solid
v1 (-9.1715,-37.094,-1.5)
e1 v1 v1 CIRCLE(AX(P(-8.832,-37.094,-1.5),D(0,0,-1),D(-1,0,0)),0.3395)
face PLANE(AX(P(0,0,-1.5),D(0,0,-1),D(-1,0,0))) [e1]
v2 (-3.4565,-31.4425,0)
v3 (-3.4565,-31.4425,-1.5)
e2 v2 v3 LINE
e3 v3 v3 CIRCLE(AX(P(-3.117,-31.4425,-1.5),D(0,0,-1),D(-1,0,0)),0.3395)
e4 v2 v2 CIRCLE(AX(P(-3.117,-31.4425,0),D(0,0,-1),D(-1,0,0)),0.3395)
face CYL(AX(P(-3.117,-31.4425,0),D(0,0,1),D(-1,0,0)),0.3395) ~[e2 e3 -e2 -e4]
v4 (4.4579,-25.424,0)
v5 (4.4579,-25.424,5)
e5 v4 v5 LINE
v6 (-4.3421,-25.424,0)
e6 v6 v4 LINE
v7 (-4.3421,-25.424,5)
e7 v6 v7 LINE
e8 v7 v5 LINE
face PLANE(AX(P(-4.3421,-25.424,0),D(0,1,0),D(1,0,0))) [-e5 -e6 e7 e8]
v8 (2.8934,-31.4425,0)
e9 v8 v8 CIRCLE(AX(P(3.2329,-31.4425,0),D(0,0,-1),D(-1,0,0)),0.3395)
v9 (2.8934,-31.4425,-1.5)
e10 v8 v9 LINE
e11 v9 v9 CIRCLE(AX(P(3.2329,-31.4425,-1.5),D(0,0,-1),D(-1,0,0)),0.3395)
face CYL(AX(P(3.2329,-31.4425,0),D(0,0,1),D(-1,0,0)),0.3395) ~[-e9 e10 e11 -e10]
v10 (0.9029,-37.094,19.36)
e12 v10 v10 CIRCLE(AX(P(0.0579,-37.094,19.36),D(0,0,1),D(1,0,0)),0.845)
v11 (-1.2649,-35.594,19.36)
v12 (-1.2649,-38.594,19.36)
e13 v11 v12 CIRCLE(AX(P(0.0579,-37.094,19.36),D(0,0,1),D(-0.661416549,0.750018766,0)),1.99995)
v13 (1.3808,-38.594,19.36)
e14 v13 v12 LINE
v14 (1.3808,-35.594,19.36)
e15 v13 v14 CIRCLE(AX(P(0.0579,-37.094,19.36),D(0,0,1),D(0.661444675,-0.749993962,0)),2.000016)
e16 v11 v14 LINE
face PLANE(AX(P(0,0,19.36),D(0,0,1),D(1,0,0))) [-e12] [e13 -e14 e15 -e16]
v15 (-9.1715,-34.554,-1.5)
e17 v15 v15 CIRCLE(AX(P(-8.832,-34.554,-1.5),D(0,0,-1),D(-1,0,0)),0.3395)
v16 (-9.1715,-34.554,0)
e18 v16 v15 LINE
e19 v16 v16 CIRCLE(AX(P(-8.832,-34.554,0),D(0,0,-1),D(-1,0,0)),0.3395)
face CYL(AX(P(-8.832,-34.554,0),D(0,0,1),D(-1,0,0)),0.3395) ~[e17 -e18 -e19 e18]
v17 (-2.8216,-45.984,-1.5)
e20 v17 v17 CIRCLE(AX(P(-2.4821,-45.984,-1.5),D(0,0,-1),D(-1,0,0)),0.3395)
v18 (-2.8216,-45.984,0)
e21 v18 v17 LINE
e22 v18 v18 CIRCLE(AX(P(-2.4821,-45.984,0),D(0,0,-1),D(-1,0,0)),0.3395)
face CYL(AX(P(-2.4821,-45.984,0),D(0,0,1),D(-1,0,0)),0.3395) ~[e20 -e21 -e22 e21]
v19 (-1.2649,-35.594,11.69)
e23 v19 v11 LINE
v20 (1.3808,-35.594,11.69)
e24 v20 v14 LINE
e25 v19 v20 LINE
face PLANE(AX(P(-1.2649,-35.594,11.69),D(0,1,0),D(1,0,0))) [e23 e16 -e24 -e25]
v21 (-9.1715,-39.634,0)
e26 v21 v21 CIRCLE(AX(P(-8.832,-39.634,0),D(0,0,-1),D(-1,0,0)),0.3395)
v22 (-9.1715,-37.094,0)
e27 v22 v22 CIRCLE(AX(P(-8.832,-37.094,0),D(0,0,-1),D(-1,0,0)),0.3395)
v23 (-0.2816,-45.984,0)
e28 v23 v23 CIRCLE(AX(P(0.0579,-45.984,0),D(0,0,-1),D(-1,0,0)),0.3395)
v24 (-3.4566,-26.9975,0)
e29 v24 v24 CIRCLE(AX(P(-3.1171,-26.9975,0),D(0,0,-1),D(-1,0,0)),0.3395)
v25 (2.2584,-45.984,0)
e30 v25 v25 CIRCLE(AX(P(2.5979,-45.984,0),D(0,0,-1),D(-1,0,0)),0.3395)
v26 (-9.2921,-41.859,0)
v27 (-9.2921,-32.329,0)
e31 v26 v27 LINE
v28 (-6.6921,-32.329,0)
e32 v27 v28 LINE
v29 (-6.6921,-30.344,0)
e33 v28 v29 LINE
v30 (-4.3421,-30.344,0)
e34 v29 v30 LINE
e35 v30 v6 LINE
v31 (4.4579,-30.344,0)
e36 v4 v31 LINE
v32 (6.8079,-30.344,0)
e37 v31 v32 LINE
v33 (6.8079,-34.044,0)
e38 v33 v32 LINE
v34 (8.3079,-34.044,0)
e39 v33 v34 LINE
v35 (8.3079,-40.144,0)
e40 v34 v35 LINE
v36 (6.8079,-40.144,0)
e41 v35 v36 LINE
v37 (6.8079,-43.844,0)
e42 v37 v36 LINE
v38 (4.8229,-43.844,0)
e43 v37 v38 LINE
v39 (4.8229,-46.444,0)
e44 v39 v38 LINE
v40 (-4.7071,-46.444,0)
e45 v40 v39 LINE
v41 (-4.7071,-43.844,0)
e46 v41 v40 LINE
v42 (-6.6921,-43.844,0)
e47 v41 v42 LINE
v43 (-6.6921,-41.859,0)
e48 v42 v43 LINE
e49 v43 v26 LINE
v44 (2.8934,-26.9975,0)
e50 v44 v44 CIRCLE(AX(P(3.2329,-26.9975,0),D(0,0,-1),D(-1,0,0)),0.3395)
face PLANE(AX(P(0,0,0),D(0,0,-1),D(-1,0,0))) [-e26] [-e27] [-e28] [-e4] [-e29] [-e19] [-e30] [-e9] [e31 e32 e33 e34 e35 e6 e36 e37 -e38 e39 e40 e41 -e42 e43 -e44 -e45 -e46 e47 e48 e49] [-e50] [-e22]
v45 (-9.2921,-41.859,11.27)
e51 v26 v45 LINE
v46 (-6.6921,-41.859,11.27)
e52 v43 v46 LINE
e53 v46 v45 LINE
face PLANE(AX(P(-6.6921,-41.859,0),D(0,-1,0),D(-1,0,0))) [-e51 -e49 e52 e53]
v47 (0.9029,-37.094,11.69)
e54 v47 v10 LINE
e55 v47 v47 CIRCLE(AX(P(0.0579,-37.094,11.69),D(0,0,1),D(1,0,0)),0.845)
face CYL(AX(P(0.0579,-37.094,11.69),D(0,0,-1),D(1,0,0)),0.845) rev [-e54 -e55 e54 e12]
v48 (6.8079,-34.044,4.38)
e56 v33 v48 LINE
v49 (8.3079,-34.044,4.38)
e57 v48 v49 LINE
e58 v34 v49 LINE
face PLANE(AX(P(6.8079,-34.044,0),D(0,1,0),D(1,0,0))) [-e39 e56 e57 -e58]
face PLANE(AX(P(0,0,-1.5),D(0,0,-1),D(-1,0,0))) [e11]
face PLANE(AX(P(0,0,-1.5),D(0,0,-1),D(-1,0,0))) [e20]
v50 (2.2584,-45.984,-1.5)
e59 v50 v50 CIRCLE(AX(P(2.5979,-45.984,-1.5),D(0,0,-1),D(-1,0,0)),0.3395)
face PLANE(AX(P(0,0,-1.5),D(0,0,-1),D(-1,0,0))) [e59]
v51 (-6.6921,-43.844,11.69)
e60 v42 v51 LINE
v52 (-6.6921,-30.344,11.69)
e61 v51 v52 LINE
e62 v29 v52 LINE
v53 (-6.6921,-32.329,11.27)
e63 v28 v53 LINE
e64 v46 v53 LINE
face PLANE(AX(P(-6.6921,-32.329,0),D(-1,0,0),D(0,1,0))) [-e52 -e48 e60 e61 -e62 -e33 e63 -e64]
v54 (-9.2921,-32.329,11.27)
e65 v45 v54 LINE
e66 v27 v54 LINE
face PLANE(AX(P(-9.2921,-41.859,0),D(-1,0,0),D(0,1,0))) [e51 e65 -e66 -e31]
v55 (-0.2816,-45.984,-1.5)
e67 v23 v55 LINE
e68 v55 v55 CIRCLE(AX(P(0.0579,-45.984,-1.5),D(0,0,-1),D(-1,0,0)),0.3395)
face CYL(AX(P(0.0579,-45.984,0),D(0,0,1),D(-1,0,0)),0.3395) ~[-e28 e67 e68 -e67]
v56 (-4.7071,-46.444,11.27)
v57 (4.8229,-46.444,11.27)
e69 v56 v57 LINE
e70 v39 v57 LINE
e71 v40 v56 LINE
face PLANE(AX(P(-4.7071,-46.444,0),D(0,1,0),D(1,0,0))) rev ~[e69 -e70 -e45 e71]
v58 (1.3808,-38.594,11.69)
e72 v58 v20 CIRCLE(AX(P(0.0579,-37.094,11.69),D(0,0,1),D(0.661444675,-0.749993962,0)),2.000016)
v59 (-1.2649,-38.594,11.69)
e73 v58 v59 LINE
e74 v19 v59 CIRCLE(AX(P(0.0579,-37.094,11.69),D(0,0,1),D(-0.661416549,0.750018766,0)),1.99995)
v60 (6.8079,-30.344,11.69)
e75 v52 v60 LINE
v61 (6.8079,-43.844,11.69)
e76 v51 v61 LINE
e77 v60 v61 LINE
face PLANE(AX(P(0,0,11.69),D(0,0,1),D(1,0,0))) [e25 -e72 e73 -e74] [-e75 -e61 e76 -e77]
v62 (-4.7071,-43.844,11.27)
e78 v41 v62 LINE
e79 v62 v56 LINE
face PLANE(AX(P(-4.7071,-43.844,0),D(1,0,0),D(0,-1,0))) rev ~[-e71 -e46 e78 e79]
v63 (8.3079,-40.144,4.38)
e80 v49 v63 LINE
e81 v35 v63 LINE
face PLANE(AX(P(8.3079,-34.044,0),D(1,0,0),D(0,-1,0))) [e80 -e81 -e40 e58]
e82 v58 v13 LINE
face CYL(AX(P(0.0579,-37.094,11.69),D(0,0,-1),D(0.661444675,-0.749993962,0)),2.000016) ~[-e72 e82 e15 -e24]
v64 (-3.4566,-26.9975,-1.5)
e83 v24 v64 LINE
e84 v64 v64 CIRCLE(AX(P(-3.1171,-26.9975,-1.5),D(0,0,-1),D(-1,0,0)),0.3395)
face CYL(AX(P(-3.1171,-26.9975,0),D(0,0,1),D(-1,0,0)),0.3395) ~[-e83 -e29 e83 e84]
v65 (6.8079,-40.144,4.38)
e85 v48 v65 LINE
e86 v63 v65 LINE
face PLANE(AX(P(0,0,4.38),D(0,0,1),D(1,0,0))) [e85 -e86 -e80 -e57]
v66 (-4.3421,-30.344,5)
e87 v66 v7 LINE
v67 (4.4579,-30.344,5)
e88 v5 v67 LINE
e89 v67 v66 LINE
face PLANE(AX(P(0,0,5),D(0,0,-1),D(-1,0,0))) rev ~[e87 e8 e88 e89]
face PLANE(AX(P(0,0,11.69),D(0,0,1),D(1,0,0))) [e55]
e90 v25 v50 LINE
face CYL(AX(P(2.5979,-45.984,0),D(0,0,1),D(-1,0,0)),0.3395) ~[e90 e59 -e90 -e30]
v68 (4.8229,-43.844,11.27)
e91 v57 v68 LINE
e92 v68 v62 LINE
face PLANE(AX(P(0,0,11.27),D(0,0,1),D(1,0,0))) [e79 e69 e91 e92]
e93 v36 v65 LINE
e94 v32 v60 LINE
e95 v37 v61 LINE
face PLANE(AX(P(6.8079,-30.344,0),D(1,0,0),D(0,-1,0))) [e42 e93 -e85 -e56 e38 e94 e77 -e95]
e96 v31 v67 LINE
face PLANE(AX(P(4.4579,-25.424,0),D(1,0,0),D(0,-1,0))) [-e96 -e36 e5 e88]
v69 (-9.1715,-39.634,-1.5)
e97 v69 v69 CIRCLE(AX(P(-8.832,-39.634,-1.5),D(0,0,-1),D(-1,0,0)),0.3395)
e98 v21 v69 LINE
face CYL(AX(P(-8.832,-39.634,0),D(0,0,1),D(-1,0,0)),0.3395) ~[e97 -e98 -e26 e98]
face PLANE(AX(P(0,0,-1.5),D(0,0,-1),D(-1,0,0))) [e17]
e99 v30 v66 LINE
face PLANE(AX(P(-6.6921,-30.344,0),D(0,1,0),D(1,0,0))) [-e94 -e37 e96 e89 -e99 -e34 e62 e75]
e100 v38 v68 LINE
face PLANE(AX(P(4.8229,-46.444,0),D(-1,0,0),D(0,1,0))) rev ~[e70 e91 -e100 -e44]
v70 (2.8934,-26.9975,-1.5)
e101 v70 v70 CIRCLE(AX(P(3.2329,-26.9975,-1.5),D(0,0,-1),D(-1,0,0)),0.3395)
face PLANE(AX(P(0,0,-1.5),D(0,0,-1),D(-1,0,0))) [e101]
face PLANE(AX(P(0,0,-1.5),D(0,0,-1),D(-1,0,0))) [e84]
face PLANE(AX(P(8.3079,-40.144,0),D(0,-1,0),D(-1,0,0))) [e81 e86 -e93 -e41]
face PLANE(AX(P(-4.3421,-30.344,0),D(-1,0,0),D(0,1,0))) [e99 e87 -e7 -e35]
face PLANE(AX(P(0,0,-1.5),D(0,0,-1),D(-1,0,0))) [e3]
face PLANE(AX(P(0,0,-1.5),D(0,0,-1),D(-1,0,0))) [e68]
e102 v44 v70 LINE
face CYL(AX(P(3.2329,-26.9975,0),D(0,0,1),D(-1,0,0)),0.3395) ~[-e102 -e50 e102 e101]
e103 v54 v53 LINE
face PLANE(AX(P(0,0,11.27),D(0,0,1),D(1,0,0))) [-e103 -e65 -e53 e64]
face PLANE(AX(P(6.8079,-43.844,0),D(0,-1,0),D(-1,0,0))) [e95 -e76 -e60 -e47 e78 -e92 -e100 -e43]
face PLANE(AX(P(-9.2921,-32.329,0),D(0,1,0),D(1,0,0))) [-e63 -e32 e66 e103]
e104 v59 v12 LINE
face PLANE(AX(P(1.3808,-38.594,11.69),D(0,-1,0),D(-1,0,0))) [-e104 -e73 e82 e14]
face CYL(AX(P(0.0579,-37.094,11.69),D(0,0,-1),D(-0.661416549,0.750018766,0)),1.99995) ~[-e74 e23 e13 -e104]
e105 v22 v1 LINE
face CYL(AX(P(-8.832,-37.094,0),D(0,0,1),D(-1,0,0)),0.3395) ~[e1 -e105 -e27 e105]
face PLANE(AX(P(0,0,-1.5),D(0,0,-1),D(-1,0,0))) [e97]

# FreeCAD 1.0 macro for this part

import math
import FreeCAD as App
import Part
import Sketcher
from FreeCAD import Vector


def add_polygon(sketch, points):
    """Adds a closed chain of lines whose ends are joined by coincident constraints."""
    first, n = sketch.GeometryCount, len(points)
    for a, b in zip(points, points[1:] + points[:1]):
        sketch.addGeometry(Part.LineSegment(App.Vector(*a, 0), App.Vector(*b, 0)), False)
    for i in range(n):
        sketch.addConstraint(Sketcher.Constraint("Coincident", first + i, 2, first + (i + 1) % n, 1))

doc = App.newDocument("Part")
body = doc.addObject("PartDesign::Body", "Body")
body.AllowCompound = True

# Sketch on XY plane
sketch1 = body.newObject("Sketcher::SketchObject", "Sketch")
sketch1.AttachmentSupport = (doc.getObject("XY_Plane"), [""])
sketch1.MapMode = "FlatFace"
add_polygon(sketch1, [(7, -30), (-7, -30), (-7, -44), (7, -44)])  # lines 0-3
sketch1.addConstraint(Sketcher.Constraint("Horizontal", 0))
sketch1.addConstraint(Sketcher.Constraint("Vertical", 1))
sketch1.addConstraint(Sketcher.Constraint("Horizontal", 2))
sketch1.addConstraint(Sketcher.Constraint("Vertical", 3))
sketch1.addConstraint(Sketcher.Constraint("Equal", 2, 1))
sketch1.addConstraint(Sketcher.Constraint("DistanceX", 0, 2, 0, 1, 13.5))
sketch1.addConstraint(Sketcher.Constraint("DistanceX", 0, 2, -1, 1, 6.692))
sketch1.addConstraint(Sketcher.Constraint("DistanceY", 0, 2, -1, 1, 30.344))
pad1 = body.newObject("PartDesign::Pad", "Pad")
pad1.Profile = sketch1
pad1.Length = 11.69

# Sketch on XY plane
sketch2 = body.newObject("Sketcher::SketchObject", "Sketch001")
sketch2.AttachmentSupport = (doc.getObject("XY_Plane"), [""])
sketch2.MapMode = "FlatFace"
add_polygon(sketch2, [(-6.7, -41.9), (-6.7, -32.3), (-9.3, -32.3), (-9.3, -41.9)])  # lines 0-3
add_polygon(sketch2, [(4.8, -43.8), (-4.7, -43.8), (-4.7, -46.4), (4.8, -46.4)])  # lines 4-7
sketch2.addConstraint(Sketcher.Constraint("Vertical", 0))
sketch2.addConstraint(Sketcher.Constraint("Horizontal", 1))
sketch2.addConstraint(Sketcher.Constraint("Vertical", 2))
sketch2.addConstraint(Sketcher.Constraint("Horizontal", 3))
sketch2.addConstraint(Sketcher.Constraint("Horizontal", 4))
sketch2.addConstraint(Sketcher.Constraint("Vertical", 5))
sketch2.addConstraint(Sketcher.Constraint("Horizontal", 6))
sketch2.addConstraint(Sketcher.Constraint("Vertical", 7))
sketch2.addConstraint(Sketcher.Constraint("Equal", 6, 0))
sketch2.addConstraint(Sketcher.Constraint("Equal", 3, 5))
sketch2.addConstraint(Sketcher.Constraint("DistanceX", 1, 2, 1, 1, 2.6))
sketch2.addConstraint(Sketcher.Constraint("DistanceX", 4, 2, 4, 1, 9.53))
sketch2.addConstraint(Sketcher.Constraint("DistanceX", 0, 2, -1, 1, 6.692))
sketch2.addConstraint(Sketcher.Constraint("DistanceY", 0, 2, -1, 1, 32.329))
sketch2.addConstraint(Sketcher.Constraint("DistanceX", 4, 2, -1, 1, 4.707))
sketch2.addConstraint(Sketcher.Constraint("DistanceY", 4, 2, -1, 1, 43.844))
pad2 = body.newObject("PartDesign::Pad", "Pad001")
pad2.Profile = sketch2
pad2.Length = 11.27

# Sketch on XY plane
sketch3 = body.newObject("Sketcher::SketchObject", "Sketch002")
sketch3.AttachmentSupport = (doc.getObject("XY_Plane"), [""])
sketch3.MapMode = "FlatFace"
add_polygon(sketch3, [(8.3, -34), (6.8, -34), (6.8, -40.1), (8.3, -40.1)])  # lines 0-3
sketch3.addConstraint(Sketcher.Constraint("Horizontal", 0))
sketch3.addConstraint(Sketcher.Constraint("Vertical", 1))
sketch3.addConstraint(Sketcher.Constraint("Horizontal", 2))
sketch3.addConstraint(Sketcher.Constraint("Vertical", 3))
sketch3.addConstraint(Sketcher.Constraint("DistanceX", 0, 2, 0, 1, 1.5))
sketch3.addConstraint(Sketcher.Constraint("DistanceY", 1, 2, 1, 1, 6.1))
sketch3.addConstraint(Sketcher.Constraint("DistanceX", -1, 1, 0, 2, 6.808))
sketch3.addConstraint(Sketcher.Constraint("DistanceY", 0, 2, -1, 1, 34.044))
pad3 = body.newObject("PartDesign::Pad", "Pad002")
pad3.Profile = sketch3
pad3.Length = 4.38

# Sketch on XY plane
sketch4 = body.newObject("Sketcher::SketchObject", "Sketch003")
sketch4.AttachmentSupport = (doc.getObject("XY_Plane"), [""])
sketch4.MapMode = "FlatFace"
sketch4.AttachmentOffset = App.Placement(Vector(0, 0, 11.69), App.Rotation())
sketch4.addGeometry(Part.LineSegment(Vector(-1.3, -38.6, 0), Vector(1.4, -38.6, 0)), False)
sketch4.addGeometry(Part.ArcOfCircle(Part.Circle(Vector(0.1, -37.1, 0), Vector(0, 0, 1), 2), math.radians(-49), math.radians(49)), False)
sketch4.addGeometry(Part.LineSegment(Vector(1.4, -35.6, 0), Vector(-1.3, -35.6, 0)), False)
sketch4.addGeometry(Part.ArcOfCircle(Part.Circle(Vector(0.1, -37.1, 0), Vector(0, 0, 1), 2), math.radians(131), math.radians(229)), False)
sketch4.addGeometry(Part.Circle(Vector(0.1, -37.1, 0), Vector(0, 0, 1), 0.8), False)
sketch4.addConstraint(Sketcher.Constraint("Coincident", 0, 2, 1, 1))
sketch4.addConstraint(Sketcher.Constraint("Coincident", 1, 2, 2, 1))
sketch4.addConstraint(Sketcher.Constraint("Coincident", 2, 2, 3, 1))
sketch4.addConstraint(Sketcher.Constraint("Coincident", 3, 2, 0, 1))
sketch4.addConstraint(Sketcher.Constraint("Horizontal", 0))
sketch4.addConstraint(Sketcher.Constraint("Horizontal", 2))
sketch4.addConstraint(Sketcher.Constraint("Coincident", 3, 3, 1, 3))
sketch4.addConstraint(Sketcher.Constraint("Coincident", 4, 3, 1, 3))
sketch4.addConstraint(Sketcher.Constraint("Equal", 1, 3))
sketch4.addConstraint(Sketcher.Constraint("Vertical", 0, 2, 1, 2))
sketch4.addConstraint(Sketcher.Constraint("Diameter", 4, 1.69))
sketch4.addConstraint(Sketcher.Constraint("Radius", 1, 2.0))
sketch4.addConstraint(Sketcher.Constraint("DistanceY", 0, 2, 1, 2, 3.0))
sketch4.addConstraint(Sketcher.Constraint("DistanceX", -1, 1, 1, 3, 0.058))
sketch4.addConstraint(Sketcher.Constraint("DistanceY", 1, 3, -1, 1, 37.094))
pad4 = body.newObject("PartDesign::Pad", "Pad003")
pad4.Profile = sketch4
pad4.Length = 7.67

# Sketch on XY plane
sketch5 = body.newObject("Sketcher::SketchObject", "Sketch004")
sketch5.AttachmentSupport = (doc.getObject("XY_Plane"), [""])
sketch5.MapMode = "FlatFace"
sketch5.addGeometry(Part.Circle(Vector(-2.48, -45.98, 0), Vector(0, 0, 1), 0.34), False)
sketch5.addGeometry(Part.Circle(Vector(-8.83, -39.63, 0), Vector(0, 0, 1), 0.34), False)
sketch5.addGeometry(Part.Circle(Vector(-8.83, -37.09, 0), Vector(0, 0, 1), 0.34), False)
sketch5.addGeometry(Part.Circle(Vector(-8.83, -34.55, 0), Vector(0, 0, 1), 0.34), False)
sketch5.addGeometry(Part.Circle(Vector(0.06, -45.98, 0), Vector(0, 0, 1), 0.34), False)
sketch5.addGeometry(Part.Circle(Vector(2.6, -45.98, 0), Vector(0, 0, 1), 0.34), False)
sketch5.addGeometry(Part.Circle(Vector(3.23, -31.44, 0), Vector(0, 0, 1), 0.34), False)
sketch5.addGeometry(Part.Circle(Vector(3.23, -27, 0), Vector(0, 0, 1), 0.34), False)
sketch5.addGeometry(Part.Circle(Vector(-3.12, -31.44, 0), Vector(0, 0, 1), 0.34), False)
sketch5.addGeometry(Part.Circle(Vector(-3.12, -27, 0), Vector(0, 0, 1), 0.34), False)
sketch5.addConstraint(Sketcher.Constraint("Equal", 0, 1))
sketch5.addConstraint(Sketcher.Constraint("Equal", 1, 2))
sketch5.addConstraint(Sketcher.Constraint("Equal", 2, 3))
sketch5.addConstraint(Sketcher.Constraint("Equal", 3, 4))
sketch5.addConstraint(Sketcher.Constraint("Equal", 4, 5))
sketch5.addConstraint(Sketcher.Constraint("Equal", 5, 6))
sketch5.addConstraint(Sketcher.Constraint("Equal", 6, 7))
sketch5.addConstraint(Sketcher.Constraint("Equal", 7, 8))
sketch5.addConstraint(Sketcher.Constraint("Equal", 8, 9))
sketch5.addConstraint(Sketcher.Constraint("Horizontal", 0, 3, 4, 3))
sketch5.addConstraint(Sketcher.Constraint("Horizontal", 4, 3, 5, 3))
sketch5.addConstraint(Sketcher.Constraint("Horizontal", 6, 3, 8, 3))
sketch5.addConstraint(Sketcher.Constraint("Horizontal", 7, 3, 9, 3))
sketch5.addConstraint(Sketcher.Constraint("Vertical", 1, 3, 2, 3))
sketch5.addConstraint(Sketcher.Constraint("Vertical", 2, 3, 3, 3))
sketch5.addConstraint(Sketcher.Constraint("Vertical", 6, 3, 7, 3))
sketch5.addConstraint(Sketcher.Constraint("Vertical", 8, 3, 9, 3))
sketch5.addConstraint(Sketcher.Constraint("Diameter", 0, 0.679))
sketch5.addConstraint(Sketcher.Constraint("DistanceX", 1, 3, 0, 3, 6.35))
sketch5.addConstraint(Sketcher.Constraint("DistanceY", 0, 3, 1, 3, 6.35))
sketch5.addConstraint(Sketcher.Constraint("DistanceY", 1, 3, 2, 3, 2.54))
sketch5.addConstraint(Sketcher.Constraint("DistanceY", 2, 3, 3, 3, 2.54))
sketch5.addConstraint(Sketcher.Constraint("DistanceX", 0, 3, 4, 3, 2.54))
sketch5.addConstraint(Sketcher.Constraint("DistanceX", 4, 3, 5, 3, 2.54))
sketch5.addConstraint(Sketcher.Constraint("DistanceX", 8, 3, 6, 3, 6.35))
sketch5.addConstraint(Sketcher.Constraint("DistanceX", 0, 3, -1, 1, 2.482))
sketch5.addConstraint(Sketcher.Constraint("DistanceY", 0, 3, -1, 1, 45.984))
sketch5.addConstraint(Sketcher.Constraint("DistanceX", -1, 1, 6, 3, 3.233))
sketch5.addConstraint(Sketcher.Constraint("DistanceY", 6, 3, 7, 3, 4.445))
sketch5.addConstraint(Sketcher.Constraint("DistanceY", 6, 3, -1, 1, 31.4425))
pad5 = body.newObject("PartDesign::Pad", "Pad004")
pad5.Profile = sketch5
pad5.Length = 1.5
pad5.Reversed = True

# Sketch on XY plane
sketch6 = body.newObject("Sketcher::SketchObject", "Sketch005")
sketch6.AttachmentSupport = (doc.getObject("XY_Plane"), [""])
sketch6.MapMode = "FlatFace"
add_polygon(sketch6, [(4.5, -25.4), (4.5, -30.3), (-4.3, -30.3), (-4.3, -25.4)])  # lines 0-3
sketch6.addConstraint(Sketcher.Constraint("Vertical", 0))
sketch6.addConstraint(Sketcher.Constraint("Horizontal", 1))
sketch6.addConstraint(Sketcher.Constraint("Vertical", 2))
sketch6.addConstraint(Sketcher.Constraint("Horizontal", 3))
sketch6.addConstraint(Sketcher.Constraint("DistanceX", 1, 2, 1, 1, 8.8))
sketch6.addConstraint(Sketcher.Constraint("DistanceY", 0, 2, 0, 1, 4.92))
sketch6.addConstraint(Sketcher.Constraint("DistanceX", -1, 1, 0, 2, 4.458))
sketch6.addConstraint(Sketcher.Constraint("DistanceY", 0, 2, -1, 1, 30.344))
pad6 = body.newObject("PartDesign::Pad", "Pad005")
pad6.Profile = sketch6
pad6.Length = 5

doc.recompute()
